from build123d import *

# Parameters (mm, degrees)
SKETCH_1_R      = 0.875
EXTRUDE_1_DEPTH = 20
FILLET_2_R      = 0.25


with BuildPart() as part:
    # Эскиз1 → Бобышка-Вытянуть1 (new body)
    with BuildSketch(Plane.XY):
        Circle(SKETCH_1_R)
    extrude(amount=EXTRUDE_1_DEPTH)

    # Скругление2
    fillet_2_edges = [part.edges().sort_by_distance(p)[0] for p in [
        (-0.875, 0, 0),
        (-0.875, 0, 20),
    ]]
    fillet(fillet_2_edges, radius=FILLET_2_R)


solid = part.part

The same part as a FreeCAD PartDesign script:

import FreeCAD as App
import Part
import Sketcher
Q = App.Units.Quantity


def edges_at(feature, points):
    """Names of the edges that pass closest to the given points."""
    edges = feature.Shape.Edges
    near = lambda p: min(range(len(edges)), key=lambda i: edges[i].distToShape(Part.Vertex(*p))[0])
    return sorted({f"Edge{near(p) + 1}" for p in points})

doc = App.newDocument("Part")
body = doc.addObject("PartDesign::Body", "Body")

sketch1 = body.newObject("Sketcher::SketchObject", "Sketch")
sketch1.AttachmentSupport = (doc.getObject("XY_Plane"), [""])
sketch1.MapMode = "FlatFace"
sketch1.addGeometry(Part.Circle(App.Vector(0, 0, 0), App.Vector(0, 0, 1), 0.875), False)
sketch1.addConstraint(Sketcher.Constraint("Coincident", 0, 3, -1, 1))
sketch1.addConstraint(Sketcher.Constraint("Diameter", 0, Q("1.75 mm")))
pad1 = body.newObject("PartDesign::Pad", "Pad")
pad1.Profile = sketch1
pad1.Length = 20
doc.recompute()

fillet = body.newObject("PartDesign::Fillet", "Fillet")
fillet.Base = (pad1, edges_at(pad1, [(-0.875, 0, 0), (-0.875, 0, 20)]))
fillet.Radius = 0.25

doc.recompute()
